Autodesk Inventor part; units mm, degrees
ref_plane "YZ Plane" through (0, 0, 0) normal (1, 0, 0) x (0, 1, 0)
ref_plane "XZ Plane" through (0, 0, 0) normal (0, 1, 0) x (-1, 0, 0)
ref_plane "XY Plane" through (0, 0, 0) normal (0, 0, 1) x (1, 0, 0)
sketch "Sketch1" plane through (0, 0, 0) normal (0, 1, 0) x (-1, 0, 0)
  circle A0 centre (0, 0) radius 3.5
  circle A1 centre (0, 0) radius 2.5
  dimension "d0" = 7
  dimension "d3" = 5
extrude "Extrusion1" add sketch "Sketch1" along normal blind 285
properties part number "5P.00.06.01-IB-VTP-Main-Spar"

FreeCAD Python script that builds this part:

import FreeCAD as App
import Part
import Sketcher
from FreeCAD import Vector
Q = App.Units.Quantity

doc = App.newDocument("Part")
params = doc.addObject("Spreadsheet::Sheet", "Params")
for row, (alias, value) in enumerate([
    ("sketch1_diameter", "7 mm"),
    ("sketch1_diameter2", "5 mm"),
    ("pad1_length", "285 mm"),
], start=1):
    params.set(f"A{row}", alias)
    params.set(f"B{row}", "=" + value)
    params.setAlias(f"B{row}", alias)

body = doc.addObject("PartDesign::Body", "Body")

sketch1 = body.newObject("Sketcher::SketchObject", "Sketch")
sketch1.AttachmentSupport = (doc.getObject("XZ_Plane"), [""])
sketch1.MapMode = "FlatFace"
sketch1.addGeometry(Part.Circle(Vector(0, 0, 0), Vector(0, 0, 1), 3.5), False)
sketch1.addGeometry(Part.Circle(Vector(0, 0, 0), Vector(0, 0, 1), 2.5), False)
sketch1.addConstraint(Sketcher.Constraint("Coincident", 0, 3, -1, 1))
sketch1.addConstraint(Sketcher.Constraint("Coincident", 1, 3, -1, 1))
sketch1.addConstraint(Sketcher.Constraint("Diameter", 0, Q("7 mm")))
sketch1.addConstraint(Sketcher.Constraint("Diameter", 1, Q("5 mm")))
sketch1.setExpression("Constraints[2]", "Params.sketch1_diameter")
sketch1.setExpression("Constraints[3]", "Params.sketch1_diameter2")
pad1 = body.newObject("PartDesign::Pad", "Pad")
pad1.Profile = sketch1
pad1.setExpression("Length", "Params.pad1_length")
pad1.Reversed = True

doc.recompute()
